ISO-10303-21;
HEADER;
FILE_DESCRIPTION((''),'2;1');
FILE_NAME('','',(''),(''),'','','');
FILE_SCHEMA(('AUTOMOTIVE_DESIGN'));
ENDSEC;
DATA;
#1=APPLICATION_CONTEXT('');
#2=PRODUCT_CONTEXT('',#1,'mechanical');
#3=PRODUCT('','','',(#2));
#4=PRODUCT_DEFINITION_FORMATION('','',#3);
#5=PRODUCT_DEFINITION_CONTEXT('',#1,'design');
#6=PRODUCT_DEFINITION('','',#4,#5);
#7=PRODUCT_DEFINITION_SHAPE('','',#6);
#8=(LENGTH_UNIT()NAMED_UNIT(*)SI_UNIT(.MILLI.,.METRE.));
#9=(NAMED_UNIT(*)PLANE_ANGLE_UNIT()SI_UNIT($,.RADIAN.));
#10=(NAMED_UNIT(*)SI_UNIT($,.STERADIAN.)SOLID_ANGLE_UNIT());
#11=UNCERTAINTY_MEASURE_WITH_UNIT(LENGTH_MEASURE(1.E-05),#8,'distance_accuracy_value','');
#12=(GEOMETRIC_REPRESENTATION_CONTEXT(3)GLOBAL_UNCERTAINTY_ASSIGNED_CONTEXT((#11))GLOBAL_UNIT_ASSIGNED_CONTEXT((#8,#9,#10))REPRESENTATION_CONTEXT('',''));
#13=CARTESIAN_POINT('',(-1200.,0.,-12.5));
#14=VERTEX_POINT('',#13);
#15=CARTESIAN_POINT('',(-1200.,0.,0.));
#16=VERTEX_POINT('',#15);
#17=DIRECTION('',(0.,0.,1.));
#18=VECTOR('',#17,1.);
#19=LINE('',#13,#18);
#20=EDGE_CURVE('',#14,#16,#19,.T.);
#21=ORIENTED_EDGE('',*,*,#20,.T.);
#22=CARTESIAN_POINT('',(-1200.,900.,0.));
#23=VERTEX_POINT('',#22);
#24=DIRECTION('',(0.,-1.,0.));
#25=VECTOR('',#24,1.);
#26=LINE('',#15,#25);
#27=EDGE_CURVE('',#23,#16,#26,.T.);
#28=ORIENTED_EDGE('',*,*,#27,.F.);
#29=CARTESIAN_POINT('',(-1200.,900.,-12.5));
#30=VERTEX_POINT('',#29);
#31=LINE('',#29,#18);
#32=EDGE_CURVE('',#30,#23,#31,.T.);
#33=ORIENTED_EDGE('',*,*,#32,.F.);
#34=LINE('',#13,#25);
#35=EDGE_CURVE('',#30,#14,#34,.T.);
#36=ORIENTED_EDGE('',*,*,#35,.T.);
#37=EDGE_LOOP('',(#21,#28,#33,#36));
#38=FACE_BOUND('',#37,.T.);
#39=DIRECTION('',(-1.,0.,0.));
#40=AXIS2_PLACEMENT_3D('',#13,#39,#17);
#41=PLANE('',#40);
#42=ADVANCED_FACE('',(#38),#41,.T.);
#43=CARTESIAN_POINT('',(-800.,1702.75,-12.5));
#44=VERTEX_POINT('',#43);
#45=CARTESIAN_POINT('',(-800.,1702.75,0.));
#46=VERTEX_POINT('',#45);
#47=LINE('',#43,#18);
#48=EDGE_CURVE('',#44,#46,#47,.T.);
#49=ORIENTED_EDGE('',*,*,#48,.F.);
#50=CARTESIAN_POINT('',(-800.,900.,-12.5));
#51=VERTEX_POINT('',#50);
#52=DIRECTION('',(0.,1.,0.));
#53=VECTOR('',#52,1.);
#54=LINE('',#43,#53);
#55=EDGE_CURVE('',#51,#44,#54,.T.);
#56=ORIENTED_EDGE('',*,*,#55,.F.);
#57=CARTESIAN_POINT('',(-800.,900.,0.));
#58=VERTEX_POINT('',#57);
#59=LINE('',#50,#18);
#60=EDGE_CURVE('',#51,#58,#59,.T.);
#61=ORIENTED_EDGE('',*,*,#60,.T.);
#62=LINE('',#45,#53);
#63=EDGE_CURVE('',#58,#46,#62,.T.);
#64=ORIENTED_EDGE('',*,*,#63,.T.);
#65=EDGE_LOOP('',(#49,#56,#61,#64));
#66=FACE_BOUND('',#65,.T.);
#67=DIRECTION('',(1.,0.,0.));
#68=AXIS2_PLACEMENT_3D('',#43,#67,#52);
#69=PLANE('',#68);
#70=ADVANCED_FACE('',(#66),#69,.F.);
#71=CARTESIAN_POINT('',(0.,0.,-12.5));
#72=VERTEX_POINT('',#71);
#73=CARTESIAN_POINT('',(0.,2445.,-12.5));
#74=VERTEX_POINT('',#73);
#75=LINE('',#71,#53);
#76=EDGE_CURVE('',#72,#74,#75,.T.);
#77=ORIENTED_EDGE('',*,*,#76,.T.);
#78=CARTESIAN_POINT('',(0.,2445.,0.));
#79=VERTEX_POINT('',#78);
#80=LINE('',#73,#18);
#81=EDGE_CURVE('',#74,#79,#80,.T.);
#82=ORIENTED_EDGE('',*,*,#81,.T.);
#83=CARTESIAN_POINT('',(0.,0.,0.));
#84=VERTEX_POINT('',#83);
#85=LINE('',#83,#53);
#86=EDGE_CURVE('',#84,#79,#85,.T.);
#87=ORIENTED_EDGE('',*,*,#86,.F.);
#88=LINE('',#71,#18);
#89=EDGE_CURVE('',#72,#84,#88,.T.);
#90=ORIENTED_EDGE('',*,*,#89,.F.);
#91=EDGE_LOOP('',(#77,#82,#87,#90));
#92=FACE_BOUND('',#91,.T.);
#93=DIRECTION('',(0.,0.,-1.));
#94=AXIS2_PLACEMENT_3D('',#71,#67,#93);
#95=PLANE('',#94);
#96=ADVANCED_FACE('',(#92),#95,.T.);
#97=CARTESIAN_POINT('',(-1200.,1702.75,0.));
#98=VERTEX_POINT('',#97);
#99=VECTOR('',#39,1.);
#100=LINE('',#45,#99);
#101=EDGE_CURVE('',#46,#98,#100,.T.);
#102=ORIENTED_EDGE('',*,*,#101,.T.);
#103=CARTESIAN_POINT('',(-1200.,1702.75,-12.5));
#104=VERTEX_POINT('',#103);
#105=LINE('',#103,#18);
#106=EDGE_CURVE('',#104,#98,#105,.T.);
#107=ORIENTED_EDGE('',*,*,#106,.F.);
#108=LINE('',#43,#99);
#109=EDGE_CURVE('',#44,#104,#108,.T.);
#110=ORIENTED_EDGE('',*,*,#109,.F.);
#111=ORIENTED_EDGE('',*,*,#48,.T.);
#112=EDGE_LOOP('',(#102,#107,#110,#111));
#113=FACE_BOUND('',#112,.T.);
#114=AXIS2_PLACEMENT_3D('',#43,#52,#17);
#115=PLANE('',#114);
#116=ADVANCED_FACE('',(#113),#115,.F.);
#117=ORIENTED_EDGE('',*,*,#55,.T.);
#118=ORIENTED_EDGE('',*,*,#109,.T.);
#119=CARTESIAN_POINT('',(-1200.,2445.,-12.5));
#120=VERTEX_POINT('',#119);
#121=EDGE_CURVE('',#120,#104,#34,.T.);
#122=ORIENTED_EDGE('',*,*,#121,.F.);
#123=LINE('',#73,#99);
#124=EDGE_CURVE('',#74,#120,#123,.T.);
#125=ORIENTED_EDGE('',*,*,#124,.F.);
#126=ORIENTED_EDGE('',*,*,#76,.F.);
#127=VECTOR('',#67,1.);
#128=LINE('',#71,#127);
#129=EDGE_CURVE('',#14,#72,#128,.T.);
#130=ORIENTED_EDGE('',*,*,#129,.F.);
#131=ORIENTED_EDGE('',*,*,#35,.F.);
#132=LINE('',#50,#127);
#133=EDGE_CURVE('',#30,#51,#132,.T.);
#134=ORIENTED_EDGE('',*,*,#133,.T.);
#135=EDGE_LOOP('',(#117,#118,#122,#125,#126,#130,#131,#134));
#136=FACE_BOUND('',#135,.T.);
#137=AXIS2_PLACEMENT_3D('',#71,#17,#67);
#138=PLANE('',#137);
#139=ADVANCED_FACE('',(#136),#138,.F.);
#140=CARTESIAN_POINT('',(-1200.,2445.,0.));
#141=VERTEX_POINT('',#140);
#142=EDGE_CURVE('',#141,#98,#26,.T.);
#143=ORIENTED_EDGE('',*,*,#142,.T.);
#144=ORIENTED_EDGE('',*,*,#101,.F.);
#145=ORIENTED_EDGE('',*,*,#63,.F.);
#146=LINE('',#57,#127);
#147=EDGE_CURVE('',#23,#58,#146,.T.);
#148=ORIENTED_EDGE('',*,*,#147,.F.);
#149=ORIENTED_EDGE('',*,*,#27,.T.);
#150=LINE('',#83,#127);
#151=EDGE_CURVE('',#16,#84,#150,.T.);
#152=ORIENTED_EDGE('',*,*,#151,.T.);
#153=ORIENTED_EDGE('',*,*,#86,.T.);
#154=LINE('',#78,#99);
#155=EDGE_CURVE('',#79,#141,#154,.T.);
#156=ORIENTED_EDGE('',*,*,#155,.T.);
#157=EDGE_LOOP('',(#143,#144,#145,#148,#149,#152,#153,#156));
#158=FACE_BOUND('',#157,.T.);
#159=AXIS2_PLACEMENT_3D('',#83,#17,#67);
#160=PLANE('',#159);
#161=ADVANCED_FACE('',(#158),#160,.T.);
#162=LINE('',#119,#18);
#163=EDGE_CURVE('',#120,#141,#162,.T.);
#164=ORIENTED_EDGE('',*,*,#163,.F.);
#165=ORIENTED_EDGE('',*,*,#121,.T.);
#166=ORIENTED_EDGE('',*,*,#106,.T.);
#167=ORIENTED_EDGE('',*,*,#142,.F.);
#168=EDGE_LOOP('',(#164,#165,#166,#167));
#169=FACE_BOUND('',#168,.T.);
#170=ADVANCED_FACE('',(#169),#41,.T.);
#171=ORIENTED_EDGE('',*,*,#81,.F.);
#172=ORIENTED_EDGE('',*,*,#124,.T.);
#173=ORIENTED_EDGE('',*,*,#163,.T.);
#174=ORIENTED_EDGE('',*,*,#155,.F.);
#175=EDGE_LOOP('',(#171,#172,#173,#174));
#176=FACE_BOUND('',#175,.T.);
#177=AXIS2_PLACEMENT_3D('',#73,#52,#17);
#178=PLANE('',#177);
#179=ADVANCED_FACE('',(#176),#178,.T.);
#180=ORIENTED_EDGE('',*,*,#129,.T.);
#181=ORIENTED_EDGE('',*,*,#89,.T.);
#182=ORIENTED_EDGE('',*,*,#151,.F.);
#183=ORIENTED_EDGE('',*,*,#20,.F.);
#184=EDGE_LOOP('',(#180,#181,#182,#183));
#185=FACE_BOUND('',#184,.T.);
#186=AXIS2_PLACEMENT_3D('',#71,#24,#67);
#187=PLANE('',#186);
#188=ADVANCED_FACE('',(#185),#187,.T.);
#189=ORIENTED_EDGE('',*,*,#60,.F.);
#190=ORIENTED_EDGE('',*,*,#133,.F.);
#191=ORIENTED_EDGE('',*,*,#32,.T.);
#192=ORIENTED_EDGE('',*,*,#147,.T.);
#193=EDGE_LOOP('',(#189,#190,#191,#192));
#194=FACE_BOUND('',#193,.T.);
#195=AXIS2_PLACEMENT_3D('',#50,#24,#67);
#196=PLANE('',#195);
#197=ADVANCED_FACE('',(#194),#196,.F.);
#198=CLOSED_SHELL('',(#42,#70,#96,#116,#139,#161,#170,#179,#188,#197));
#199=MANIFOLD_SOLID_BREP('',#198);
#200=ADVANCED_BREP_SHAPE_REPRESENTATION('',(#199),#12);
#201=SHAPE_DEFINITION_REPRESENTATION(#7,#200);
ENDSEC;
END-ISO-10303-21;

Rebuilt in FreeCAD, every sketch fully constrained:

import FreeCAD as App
import Part
import Sketcher
from FreeCAD import Vector


def add_polygon(sketch, points):
    """Adds a closed chain of lines whose ends are joined by coincident constraints."""
    first, n = sketch.GeometryCount, len(points)
    for a, b in zip(points, points[1:] + points[:1]):
        sketch.addGeometry(Part.LineSegment(App.Vector(*a, 0), App.Vector(*b, 0)), False)
    for i in range(n):
        sketch.addConstraint(Sketcher.Constraint("Coincident", first + i, 2, first + (i + 1) % n, 1))

doc = App.newDocument("Part")
body = doc.addObject("PartDesign::Body", "Body")

# Sketch on XY plane
sketch1 = body.newObject("Sketcher::SketchObject", "Sketch")
sketch1.AttachmentSupport = (doc.getObject("XY_Plane"), [""])
sketch1.MapMode = "FlatFace"
add_polygon(sketch1, [(-1200, 2445), (-1200, 0), (0, 0), (0, 2445)])  # lines 0-3
sketch1.addConstraint(Sketcher.Constraint("Vertical", 0))
sketch1.addConstraint(Sketcher.Constraint("Horizontal", 1))
sketch1.addConstraint(Sketcher.Constraint("Vertical", 2))
sketch1.addConstraint(Sketcher.Constraint("Horizontal", 3))
sketch1.addConstraint(Sketcher.Constraint("Coincident", 1, 2, -1, 1))
sketch1.addConstraint(Sketcher.Constraint("DistanceX", 1, 1, 1, 2, 1200.0))
sketch1.addConstraint(Sketcher.Constraint("DistanceY", 0, 2, 0, 1, 2445.0))
pad1 = body.newObject("PartDesign::Pad", "Pad")
pad1.Profile = sketch1
pad1.Length = 12.5
pad1.Reversed = True

# Sketch on XY plane
sketch2 = body.newObject("Sketcher::SketchObject", "Sketch001")
sketch2.AttachmentSupport = (doc.getObject("XY_Plane"), [""])
sketch2.MapMode = "FlatFace"
add_polygon(sketch2, [(-1200, 1703), (-1200, 900), (-800, 900), (-800, 1703)])  # lines 0-3
sketch2.addConstraint(Sketcher.Constraint("Vertical", 0))
sketch2.addConstraint(Sketcher.Constraint("Horizontal", 1))
sketch2.addConstraint(Sketcher.Constraint("Vertical", 2))
sketch2.addConstraint(Sketcher.Constraint("Horizontal", 3))
sketch2.addConstraint(Sketcher.Constraint("DistanceX", 1, 1, 1, 2, 400.0))
sketch2.addConstraint(Sketcher.Constraint("DistanceX", 0, 2, -1, 1, 1200.0))
sketch2.addConstraint(Sketcher.Constraint("DistanceY", -1, 1, 0, 2, 900.0))
sketch2.addConstraint(Sketcher.Constraint("DistanceY", 0, 2, 0, 1, 802.75))
pocket1 = body.newObject("PartDesign::Pocket", "Pocket")
pocket1.Profile = sketch2
pocket1.Type = "ThroughAll"

doc.recompute()
